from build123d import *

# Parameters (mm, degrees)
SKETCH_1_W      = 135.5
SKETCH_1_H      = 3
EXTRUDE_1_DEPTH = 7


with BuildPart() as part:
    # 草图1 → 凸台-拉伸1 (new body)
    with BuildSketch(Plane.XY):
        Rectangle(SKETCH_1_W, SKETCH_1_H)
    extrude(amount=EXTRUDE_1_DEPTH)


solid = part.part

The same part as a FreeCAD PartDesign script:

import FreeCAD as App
import Part
import Sketcher

V = App.Vector

doc = App.newDocument("Part")
body = doc.addObject("PartDesign::Body", "Body")

# Sketch on XY plane
sketch1 = doc.addObject("Sketcher::SketchObject", "Sketch")
body.addObject(sketch1)
sketch1.AttachmentSupport = (doc.XY_Plane, [""])
sketch1.MapMode = "FlatFace"
sketch1.addGeometry([
    Part.LineSegment(V(-67.8, 1.5, 0), V(-67.8, -1.5, 0)),
    Part.LineSegment(V(-67.8, -1.5, 0), V(67.8, -1.5, 0)),
    Part.LineSegment(V(67.8, -1.5, 0), V(67.8, 1.5, 0)),
    Part.LineSegment(V(67.8, 1.5, 0), V(-67.8, 1.5, 0)),
], False)
sketch1.addConstraint([
    Sketcher.Constraint("Coincident", 0, 2, 1, 1),
    Sketcher.Constraint("Coincident", 1, 2, 2, 1),
    Sketcher.Constraint("Coincident", 2, 2, 3, 1),
    Sketcher.Constraint("Coincident", 3, 2, 0, 1),
    Sketcher.Constraint("Vertical", 0),
    Sketcher.Constraint("Horizontal", 1),
    Sketcher.Constraint("Vertical", 2),
    Sketcher.Constraint("Horizontal", 3),
    Sketcher.Constraint("Symmetric", 0, 2, 2, 2, -1, 1),
    Sketcher.Constraint("DistanceY", 0, 2, 0, 1, 3.0),
    Sketcher.Constraint("DistanceX", 1, 1, 1, 2, 135.5),
])
pad1 = doc.addObject("PartDesign::Pad", "Pad")
body.addObject(pad1)
pad1.Profile = sketch1
pad1.Length = 7

doc.recompute()
